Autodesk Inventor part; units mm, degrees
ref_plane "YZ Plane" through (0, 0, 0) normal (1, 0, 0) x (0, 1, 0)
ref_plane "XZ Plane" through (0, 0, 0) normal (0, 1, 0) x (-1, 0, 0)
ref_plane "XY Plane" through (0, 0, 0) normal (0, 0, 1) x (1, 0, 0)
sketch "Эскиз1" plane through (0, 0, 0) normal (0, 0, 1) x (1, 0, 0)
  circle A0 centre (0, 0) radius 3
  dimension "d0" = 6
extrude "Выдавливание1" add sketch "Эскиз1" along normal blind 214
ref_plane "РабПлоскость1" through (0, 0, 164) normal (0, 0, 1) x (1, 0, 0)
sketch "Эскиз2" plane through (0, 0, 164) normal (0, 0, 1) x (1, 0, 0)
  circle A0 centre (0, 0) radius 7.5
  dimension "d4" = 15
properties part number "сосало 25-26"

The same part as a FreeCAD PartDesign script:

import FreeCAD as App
import Part
import Sketcher

V = App.Vector
Q = App.Units.Quantity

doc = App.newDocument("Part")
body = doc.addObject("PartDesign::Body", "Body")

# Sketch on XY plane
sketch1 = body.newObject("Sketcher::SketchObject", "Sketch")
sketch1.AttachmentSupport = (doc.getObject("XY_Plane"), [""])
sketch1.MapMode = "FlatFace"
sketch1.addGeometry(Part.Circle(V(0, 0, 0), V(0, 0, 1), 3), False)
sketch1.addConstraint([
    Sketcher.Constraint("Coincident", 0, 3, -1, 1),
    Sketcher.Constraint("Diameter", 0, Q("6 mm")),
])
pad1 = body.newObject("PartDesign::Pad", "Pad")
pad1.Profile = sketch1
pad1.Length = 214

doc.recompute()
